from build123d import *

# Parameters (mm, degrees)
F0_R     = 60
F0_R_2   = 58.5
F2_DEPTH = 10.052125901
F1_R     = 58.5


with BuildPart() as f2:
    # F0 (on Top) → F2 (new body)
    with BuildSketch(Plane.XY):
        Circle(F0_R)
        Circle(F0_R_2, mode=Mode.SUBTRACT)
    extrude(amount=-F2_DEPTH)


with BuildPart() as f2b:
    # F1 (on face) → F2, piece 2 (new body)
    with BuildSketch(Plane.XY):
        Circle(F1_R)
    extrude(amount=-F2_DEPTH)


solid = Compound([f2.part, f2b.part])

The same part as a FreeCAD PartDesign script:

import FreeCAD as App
import Part
import Sketcher

V = App.Vector
Q = App.Units.Quantity

doc = App.newDocument("Part")
params = doc.addObject("Spreadsheet::Sheet", "Params")
for row, (alias, value) in enumerate([
    ("sketch1_diameter", "120 mm"),
    ("sketch1_diameter2", "117 mm"),
    ("pad1_length", "10.052126 mm"),
    ("sketch2_diameter", "117 mm"),
    ("pad2_length", "10.052126 mm"),
], start=1):
    params.set(f"A{row}", alias)
    params.set(f"B{row}", "=" + value)
    params.setAlias(f"B{row}", alias)

body = doc.addObject("PartDesign::Body", "Body")

sketch1 = body.newObject("Sketcher::SketchObject", "Sketch")
sketch1.AttachmentSupport = (doc.getObject("XY_Plane"), [""])
sketch1.MapMode = "FlatFace"
sketch1.addGeometry(Part.Circle(V(0, 0, 0), V(0, 0, 1), 60), False)
sketch1.addGeometry(Part.Circle(V(0, 0, 0), V(0, 0, 1), 58.5), False)
sketch1.addConstraint(Sketcher.Constraint("Coincident", 0, 3, -1, 1))
sketch1.addConstraint(Sketcher.Constraint("Coincident", 1, 3, -1, 1))
sketch1.addConstraint(Sketcher.Constraint("Diameter", 0, Q("120 mm")))
sketch1.addConstraint(Sketcher.Constraint("Diameter", 1, Q("117 mm")))
sketch1.setExpression("Constraints[2]", "Params.sketch1_diameter")
sketch1.setExpression("Constraints[3]", "Params.sketch1_diameter2")
pad1 = body.newObject("PartDesign::Pad", "Pad")
pad1.Profile = sketch1
pad1.setExpression("Length", "Params.pad1_length")
pad1.Reversed = True
body2 = doc.addObject("PartDesign::Body", "Body001")

sketch2 = body2.newObject("Sketcher::SketchObject", "Sketch001")
sketch2.AttachmentSupport = (doc.getObject("XY_Plane001"), [""])
sketch2.MapMode = "FlatFace"
sketch2.addGeometry(Part.Circle(V(0, 0, 0), V(0, 0, 1), 58.5), False)
sketch2.addConstraint(Sketcher.Constraint("Coincident", 0, 3, -1, 1))
sketch2.addConstraint(Sketcher.Constraint("Diameter", 0, Q("117 mm")))
sketch2.setExpression("Constraints[1]", "Params.sketch2_diameter")
pad2 = body2.newObject("PartDesign::Pad", "Pad001")
pad2.Profile = sketch2
pad2.setExpression("Length", "Params.pad2_length")
pad2.Reversed = True

doc.recompute()
